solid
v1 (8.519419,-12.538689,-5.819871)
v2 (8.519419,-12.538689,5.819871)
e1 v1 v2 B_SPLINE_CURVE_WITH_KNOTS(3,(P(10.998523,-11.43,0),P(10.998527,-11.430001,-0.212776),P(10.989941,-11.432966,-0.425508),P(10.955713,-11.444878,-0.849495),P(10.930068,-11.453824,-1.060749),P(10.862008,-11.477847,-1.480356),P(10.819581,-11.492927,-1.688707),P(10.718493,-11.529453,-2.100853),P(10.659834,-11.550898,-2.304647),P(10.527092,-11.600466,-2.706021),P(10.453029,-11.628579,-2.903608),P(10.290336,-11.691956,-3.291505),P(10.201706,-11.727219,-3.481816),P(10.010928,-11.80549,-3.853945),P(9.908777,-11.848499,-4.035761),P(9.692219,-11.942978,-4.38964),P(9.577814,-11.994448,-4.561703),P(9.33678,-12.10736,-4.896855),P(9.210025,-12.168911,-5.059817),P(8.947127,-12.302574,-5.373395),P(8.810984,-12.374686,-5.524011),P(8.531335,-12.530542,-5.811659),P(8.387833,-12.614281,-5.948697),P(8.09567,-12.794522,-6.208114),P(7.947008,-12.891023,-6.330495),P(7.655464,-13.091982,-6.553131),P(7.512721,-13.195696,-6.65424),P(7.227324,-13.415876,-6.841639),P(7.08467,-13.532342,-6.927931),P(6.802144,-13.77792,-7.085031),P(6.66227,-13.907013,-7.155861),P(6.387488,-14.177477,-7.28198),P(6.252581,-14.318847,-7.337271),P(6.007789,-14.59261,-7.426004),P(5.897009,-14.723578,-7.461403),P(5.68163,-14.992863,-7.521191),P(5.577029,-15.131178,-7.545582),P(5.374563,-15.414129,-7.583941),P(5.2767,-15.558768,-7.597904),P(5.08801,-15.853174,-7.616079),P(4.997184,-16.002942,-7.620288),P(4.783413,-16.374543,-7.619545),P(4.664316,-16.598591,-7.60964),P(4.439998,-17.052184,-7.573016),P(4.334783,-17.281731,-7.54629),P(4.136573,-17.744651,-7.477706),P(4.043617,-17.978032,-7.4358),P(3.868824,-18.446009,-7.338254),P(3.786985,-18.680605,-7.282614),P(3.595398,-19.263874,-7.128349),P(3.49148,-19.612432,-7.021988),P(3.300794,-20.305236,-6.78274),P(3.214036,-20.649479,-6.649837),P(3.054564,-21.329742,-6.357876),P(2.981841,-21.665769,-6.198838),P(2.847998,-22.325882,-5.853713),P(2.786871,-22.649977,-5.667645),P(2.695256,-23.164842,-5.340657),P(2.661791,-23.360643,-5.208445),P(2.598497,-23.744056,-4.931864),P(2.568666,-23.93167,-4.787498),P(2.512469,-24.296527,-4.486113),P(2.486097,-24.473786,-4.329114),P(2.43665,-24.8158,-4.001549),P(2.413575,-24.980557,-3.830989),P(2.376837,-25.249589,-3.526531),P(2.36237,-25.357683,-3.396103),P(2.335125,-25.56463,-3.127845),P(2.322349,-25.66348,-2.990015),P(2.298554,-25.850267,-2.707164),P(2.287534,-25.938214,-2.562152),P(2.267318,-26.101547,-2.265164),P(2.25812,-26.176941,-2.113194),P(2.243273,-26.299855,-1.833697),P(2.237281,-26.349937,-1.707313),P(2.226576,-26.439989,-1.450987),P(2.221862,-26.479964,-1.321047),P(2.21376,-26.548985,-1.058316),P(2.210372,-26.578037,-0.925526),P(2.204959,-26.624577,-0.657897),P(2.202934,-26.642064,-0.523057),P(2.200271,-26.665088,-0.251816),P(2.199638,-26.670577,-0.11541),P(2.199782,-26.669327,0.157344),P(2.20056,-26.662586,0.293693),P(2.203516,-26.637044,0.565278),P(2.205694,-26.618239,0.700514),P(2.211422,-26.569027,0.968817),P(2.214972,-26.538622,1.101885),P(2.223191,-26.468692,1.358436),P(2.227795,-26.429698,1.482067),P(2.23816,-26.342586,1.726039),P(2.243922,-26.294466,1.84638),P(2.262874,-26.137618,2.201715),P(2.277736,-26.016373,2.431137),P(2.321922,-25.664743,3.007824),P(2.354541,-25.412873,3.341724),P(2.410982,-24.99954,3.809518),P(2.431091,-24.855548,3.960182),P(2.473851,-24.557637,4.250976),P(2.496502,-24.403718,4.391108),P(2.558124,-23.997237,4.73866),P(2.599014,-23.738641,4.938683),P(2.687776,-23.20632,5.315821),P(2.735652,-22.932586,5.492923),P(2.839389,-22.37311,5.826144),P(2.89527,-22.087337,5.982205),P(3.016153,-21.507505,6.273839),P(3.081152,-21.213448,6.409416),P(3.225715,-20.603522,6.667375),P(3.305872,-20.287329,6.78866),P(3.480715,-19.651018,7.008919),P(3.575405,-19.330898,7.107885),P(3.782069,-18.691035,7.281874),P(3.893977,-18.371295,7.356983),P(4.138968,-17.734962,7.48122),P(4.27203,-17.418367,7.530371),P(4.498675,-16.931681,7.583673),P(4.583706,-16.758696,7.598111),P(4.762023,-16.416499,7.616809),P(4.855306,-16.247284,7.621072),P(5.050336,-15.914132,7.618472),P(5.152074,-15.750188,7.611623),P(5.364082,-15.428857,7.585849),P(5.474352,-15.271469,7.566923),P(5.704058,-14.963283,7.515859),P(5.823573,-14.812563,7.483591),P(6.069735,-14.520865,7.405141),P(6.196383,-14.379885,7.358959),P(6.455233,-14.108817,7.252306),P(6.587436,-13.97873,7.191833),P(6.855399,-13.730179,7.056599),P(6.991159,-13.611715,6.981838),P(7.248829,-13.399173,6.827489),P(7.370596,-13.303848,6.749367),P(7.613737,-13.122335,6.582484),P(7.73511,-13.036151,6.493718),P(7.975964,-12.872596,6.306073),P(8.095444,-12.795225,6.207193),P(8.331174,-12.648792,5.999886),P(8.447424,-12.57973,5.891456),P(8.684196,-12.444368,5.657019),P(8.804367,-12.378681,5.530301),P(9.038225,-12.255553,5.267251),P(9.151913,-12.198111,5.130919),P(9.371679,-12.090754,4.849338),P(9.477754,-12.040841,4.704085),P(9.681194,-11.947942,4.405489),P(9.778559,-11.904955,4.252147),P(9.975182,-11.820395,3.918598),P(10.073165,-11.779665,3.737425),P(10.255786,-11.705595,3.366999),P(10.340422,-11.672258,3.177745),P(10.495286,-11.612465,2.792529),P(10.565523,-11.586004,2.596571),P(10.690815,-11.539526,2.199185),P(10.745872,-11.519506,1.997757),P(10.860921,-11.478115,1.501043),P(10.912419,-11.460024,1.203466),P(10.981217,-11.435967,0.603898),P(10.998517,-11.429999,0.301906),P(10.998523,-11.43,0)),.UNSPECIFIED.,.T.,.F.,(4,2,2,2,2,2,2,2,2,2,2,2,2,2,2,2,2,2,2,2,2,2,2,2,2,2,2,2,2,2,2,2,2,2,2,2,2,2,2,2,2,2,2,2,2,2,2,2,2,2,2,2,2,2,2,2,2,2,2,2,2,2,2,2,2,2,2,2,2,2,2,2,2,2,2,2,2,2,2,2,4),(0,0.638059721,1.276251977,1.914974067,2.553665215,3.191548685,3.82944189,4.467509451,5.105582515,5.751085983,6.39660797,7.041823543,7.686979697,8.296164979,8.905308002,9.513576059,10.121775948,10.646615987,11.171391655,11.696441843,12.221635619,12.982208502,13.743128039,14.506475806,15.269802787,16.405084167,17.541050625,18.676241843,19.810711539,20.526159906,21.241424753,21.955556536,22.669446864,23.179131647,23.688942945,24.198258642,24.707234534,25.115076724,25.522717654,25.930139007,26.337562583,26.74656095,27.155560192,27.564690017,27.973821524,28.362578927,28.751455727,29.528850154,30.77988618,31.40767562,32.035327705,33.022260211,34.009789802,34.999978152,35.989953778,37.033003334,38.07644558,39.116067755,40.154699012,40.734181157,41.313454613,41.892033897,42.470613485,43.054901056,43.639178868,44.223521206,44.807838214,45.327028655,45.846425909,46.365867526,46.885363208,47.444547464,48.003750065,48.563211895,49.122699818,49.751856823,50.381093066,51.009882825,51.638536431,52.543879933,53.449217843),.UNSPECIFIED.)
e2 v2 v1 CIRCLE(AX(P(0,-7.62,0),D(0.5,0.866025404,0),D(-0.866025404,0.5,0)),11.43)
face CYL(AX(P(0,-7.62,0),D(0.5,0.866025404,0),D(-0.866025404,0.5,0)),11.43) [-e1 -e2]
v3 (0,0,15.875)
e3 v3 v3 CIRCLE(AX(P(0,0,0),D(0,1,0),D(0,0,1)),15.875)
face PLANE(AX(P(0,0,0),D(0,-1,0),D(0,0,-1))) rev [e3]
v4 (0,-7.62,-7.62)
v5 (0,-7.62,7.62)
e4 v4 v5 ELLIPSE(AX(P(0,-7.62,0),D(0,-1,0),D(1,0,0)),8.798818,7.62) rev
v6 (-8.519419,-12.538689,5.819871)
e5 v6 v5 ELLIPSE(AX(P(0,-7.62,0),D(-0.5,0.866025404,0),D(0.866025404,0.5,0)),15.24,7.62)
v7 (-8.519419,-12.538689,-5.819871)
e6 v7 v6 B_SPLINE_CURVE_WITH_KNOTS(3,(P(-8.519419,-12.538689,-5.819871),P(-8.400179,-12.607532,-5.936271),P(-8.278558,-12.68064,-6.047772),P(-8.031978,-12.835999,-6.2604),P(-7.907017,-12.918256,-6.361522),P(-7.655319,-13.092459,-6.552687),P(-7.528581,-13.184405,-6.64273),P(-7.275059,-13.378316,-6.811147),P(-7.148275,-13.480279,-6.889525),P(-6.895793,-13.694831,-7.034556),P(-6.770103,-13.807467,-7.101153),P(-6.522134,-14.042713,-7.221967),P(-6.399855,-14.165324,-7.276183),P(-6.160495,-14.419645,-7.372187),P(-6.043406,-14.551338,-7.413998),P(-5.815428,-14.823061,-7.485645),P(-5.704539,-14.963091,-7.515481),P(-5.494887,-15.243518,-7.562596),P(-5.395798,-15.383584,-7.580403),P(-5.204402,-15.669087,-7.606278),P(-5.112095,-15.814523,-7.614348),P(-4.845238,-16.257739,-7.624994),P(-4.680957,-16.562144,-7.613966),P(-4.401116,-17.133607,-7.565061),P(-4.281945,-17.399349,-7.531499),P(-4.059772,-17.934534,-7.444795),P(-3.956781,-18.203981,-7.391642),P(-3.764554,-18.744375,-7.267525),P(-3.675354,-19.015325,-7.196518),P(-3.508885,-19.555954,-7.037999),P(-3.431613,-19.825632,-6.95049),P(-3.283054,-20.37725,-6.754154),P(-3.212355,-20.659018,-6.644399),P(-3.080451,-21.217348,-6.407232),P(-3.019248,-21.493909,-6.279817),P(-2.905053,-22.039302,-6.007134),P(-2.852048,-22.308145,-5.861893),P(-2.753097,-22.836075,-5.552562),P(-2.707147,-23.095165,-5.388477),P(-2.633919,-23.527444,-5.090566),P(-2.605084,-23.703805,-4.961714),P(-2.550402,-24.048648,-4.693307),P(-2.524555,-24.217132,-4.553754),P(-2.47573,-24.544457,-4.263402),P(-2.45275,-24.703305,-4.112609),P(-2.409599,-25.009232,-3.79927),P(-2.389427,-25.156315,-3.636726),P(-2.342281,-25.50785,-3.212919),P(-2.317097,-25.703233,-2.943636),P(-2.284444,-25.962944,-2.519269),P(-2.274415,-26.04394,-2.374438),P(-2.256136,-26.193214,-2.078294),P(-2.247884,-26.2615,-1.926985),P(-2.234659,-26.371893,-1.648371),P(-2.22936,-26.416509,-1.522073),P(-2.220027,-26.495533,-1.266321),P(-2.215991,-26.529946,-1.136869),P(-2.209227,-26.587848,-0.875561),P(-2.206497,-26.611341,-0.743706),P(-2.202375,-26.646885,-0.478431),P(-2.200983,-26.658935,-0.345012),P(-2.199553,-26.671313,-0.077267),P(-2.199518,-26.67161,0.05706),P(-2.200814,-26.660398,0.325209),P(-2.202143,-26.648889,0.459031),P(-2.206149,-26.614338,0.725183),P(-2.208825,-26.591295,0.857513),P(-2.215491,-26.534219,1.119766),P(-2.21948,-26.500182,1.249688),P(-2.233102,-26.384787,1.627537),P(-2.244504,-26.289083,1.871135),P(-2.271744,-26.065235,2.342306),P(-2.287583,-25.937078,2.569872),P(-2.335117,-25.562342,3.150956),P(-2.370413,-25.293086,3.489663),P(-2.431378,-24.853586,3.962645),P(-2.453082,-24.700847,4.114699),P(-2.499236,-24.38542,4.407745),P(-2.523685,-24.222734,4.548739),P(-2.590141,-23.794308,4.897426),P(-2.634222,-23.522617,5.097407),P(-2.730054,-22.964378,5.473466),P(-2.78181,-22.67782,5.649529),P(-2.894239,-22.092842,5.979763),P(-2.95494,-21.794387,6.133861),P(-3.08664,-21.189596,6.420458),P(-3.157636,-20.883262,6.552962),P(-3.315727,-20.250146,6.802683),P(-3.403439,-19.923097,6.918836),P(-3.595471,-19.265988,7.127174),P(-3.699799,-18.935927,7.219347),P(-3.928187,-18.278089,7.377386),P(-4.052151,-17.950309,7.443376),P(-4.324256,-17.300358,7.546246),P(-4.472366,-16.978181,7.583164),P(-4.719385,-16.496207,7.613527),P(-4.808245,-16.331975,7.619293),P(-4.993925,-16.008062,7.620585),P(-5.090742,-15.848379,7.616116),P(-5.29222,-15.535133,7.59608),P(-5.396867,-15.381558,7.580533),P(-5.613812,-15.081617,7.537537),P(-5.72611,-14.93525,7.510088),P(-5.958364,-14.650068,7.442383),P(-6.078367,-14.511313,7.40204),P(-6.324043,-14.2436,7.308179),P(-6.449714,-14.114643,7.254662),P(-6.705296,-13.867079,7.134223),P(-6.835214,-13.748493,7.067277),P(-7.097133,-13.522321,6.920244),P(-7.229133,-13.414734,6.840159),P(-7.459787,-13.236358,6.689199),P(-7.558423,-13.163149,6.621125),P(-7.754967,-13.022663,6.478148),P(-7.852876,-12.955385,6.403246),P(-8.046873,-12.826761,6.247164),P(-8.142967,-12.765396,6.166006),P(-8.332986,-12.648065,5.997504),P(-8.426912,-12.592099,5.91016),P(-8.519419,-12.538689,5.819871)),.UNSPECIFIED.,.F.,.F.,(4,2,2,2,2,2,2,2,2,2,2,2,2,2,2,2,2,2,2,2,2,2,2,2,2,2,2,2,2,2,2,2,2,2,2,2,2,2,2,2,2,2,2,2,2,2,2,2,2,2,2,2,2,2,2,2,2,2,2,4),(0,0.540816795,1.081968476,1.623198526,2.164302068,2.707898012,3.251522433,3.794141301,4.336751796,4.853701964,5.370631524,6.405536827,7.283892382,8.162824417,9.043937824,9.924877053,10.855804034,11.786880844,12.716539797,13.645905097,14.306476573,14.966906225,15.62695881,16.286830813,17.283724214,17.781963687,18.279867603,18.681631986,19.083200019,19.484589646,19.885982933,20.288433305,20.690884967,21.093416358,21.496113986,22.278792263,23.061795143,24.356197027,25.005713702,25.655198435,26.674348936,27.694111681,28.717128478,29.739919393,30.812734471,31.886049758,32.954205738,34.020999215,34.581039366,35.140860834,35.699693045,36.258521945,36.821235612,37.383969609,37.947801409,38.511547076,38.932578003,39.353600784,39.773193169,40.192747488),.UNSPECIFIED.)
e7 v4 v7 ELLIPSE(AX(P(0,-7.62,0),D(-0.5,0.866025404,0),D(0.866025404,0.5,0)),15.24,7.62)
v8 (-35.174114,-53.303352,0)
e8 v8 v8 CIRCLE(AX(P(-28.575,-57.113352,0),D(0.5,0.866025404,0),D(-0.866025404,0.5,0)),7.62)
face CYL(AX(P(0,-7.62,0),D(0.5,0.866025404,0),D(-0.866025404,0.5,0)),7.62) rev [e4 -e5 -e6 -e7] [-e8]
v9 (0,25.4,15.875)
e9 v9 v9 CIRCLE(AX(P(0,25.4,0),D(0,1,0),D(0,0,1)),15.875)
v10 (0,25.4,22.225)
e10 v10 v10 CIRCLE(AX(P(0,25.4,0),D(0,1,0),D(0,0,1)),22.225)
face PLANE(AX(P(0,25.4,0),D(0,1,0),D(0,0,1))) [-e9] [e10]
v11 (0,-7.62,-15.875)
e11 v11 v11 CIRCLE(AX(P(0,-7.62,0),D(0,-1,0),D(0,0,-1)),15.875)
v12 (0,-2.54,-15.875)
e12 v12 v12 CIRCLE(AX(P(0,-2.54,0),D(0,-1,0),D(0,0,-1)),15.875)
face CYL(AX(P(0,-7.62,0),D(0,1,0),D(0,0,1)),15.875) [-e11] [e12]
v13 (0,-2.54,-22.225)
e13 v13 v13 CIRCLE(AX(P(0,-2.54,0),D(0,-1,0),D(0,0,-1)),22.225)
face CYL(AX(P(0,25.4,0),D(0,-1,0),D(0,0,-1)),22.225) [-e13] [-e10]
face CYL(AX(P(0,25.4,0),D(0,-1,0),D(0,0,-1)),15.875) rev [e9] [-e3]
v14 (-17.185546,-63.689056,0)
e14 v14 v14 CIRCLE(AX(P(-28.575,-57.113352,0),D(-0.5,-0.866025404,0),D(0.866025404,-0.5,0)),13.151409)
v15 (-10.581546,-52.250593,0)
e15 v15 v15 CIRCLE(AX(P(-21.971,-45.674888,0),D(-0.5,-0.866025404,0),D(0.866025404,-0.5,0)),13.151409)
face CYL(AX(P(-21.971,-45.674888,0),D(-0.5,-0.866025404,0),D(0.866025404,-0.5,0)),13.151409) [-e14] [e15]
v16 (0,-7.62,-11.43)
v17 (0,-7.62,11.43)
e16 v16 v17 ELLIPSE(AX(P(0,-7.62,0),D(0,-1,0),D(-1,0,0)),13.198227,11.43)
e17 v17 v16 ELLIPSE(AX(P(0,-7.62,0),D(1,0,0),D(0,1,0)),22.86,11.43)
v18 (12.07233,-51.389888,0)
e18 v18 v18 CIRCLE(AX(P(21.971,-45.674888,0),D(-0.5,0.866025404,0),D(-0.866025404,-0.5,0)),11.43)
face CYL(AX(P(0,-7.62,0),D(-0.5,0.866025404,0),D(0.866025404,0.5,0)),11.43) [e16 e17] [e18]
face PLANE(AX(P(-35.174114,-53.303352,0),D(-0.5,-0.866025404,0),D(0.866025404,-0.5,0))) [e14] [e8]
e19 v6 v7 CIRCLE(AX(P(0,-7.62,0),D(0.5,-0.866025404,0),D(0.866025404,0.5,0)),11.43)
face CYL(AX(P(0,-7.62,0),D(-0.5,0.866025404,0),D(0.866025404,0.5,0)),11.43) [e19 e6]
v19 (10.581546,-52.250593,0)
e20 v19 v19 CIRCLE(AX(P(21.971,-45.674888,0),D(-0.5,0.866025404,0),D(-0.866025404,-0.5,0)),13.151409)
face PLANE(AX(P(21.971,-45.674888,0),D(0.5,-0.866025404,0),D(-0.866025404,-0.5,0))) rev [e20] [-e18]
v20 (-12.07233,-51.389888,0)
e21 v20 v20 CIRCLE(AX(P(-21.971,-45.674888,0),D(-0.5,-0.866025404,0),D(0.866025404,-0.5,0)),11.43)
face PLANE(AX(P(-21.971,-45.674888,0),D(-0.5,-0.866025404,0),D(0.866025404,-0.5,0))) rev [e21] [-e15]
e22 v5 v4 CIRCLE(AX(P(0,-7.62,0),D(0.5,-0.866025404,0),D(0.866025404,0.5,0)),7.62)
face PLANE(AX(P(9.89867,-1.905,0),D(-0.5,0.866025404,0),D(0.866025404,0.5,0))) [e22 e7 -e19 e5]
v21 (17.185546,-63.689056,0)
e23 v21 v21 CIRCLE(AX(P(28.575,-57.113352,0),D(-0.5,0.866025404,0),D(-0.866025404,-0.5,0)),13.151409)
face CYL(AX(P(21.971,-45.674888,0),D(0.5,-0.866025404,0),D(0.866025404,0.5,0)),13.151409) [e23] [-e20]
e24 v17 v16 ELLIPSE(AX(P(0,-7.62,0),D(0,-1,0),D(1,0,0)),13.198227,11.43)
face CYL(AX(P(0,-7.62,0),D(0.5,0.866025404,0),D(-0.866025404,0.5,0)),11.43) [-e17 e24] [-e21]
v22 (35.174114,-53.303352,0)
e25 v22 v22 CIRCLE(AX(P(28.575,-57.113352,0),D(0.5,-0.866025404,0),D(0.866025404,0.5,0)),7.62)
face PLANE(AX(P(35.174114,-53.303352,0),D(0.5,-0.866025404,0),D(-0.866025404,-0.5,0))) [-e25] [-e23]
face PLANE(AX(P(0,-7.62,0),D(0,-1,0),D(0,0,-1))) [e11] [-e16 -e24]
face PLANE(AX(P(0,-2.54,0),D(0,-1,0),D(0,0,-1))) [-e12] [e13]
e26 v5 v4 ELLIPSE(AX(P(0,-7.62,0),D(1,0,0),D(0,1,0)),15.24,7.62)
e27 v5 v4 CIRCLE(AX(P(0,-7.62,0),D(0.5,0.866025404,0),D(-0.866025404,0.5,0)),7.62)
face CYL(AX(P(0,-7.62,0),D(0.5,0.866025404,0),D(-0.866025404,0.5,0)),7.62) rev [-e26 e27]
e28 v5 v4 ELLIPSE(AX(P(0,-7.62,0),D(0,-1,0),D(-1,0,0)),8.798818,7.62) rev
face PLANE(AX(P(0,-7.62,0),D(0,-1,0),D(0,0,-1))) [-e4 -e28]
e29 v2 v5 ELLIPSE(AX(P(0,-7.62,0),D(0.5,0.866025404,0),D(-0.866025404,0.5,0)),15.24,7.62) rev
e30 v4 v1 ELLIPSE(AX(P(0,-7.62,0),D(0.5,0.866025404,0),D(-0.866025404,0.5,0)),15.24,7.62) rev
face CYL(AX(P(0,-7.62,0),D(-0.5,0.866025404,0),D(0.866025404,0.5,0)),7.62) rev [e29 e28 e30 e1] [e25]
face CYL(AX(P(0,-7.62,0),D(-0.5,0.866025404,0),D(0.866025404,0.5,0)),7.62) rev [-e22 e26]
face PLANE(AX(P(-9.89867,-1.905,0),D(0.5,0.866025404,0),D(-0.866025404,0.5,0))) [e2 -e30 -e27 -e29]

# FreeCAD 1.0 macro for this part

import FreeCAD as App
import Part
import Sketcher
from FreeCAD import Vector
Q = App.Units.Quantity

doc = App.newDocument("Part")
body = doc.addObject("PartDesign::Body", "Body")

# Sketch on XZ plane
sketch1 = body.newObject("Sketcher::SketchObject", "Sketch")
sketch1.AttachmentSupport = (doc.getObject("XZ_Plane"), [""])
sketch1.MapMode = "FlatFace"
sketch1.addGeometry([
    Part.Circle(Vector(0, 0, 0), Vector(0, 0, 1), 22),
    Part.Circle(Vector(0, 0, 0), Vector(0, 0, 1), 16),
], False)
sketch1.addConstraint([
    Sketcher.Constraint("Coincident", 0, 3, -1, 1),
    Sketcher.Constraint("Coincident", 1, 3, -1, 1),
    Sketcher.Constraint("Diameter", 0, Q("1.75 in")),
    Sketcher.Constraint("Diameter", 1, Q("1.25 in")),
])
pad1 = body.newObject("PartDesign::Pad", "Pad")
pad1.Profile = sketch1
pad1.Length = Q("1 in")
pad1.Reversed = True

# Sketch on XZ plane
sketch2 = body.newObject("Sketcher::SketchObject", "Sketch001")
sketch2.AttachmentSupport = (doc.getObject("XZ_Plane"), [""])
sketch2.MapMode = "FlatFace"
sketch2.AttachmentOffset = App.Placement(Vector(0, 0, 0.1 * 25.4), App.Rotation())
sketch2.addGeometry(Part.Circle(Vector(0, 0, 0), Vector(0, 0, 1), 22), False)
sketch2.addConstraint([
    Sketcher.Constraint("Coincident", 0, 3, -1, 1),
    Sketcher.Constraint("Diameter", 0, Q("1.75 in")),
])
pad2 = body.newObject("PartDesign::Pad", "Pad001")
pad2.Profile = sketch2
pad2.Length = Q("0.1 in")
pad2.Reversed = True

# Sketch on XZ plane
sketch3 = body.newObject("Sketcher::SketchObject", "Sketch002")
sketch3.AttachmentSupport = (doc.getObject("XZ_Plane"), [""])
sketch3.MapMode = "FlatFace"
sketch3.AttachmentOffset = App.Placement(Vector(0, 0, 0.3 * 25.4), App.Rotation())
sketch3.addGeometry(Part.Circle(Vector(0, 0, 0), Vector(0, 0, 1), 16), False)
sketch3.addConstraint([
    Sketcher.Constraint("Coincident", 0, 3, -1, 1),
    Sketcher.Constraint("Diameter", 0, Q("1.25 in")),
])
pad3 = body.newObject("PartDesign::Pad", "Pad002")
pad3.Profile = sketch3
pad3.Length = Q("0.2 in")
pad3.Reversed = True

# Sketch on XY plane
sketch4 = body.newObject("Sketcher::SketchObject", "Sketch003")
sketch4.AttachmentSupport = (doc.getObject("XY_Plane"), [""])
sketch4.MapMode = "FlatFace"
sketch4.addGeometry([
    Part.LineSegment(Vector(-9.9, -1.9, 0), Vector(-38.5, -51.4, 0)),
    Part.LineSegment(Vector(-38.5, -51.4, 0), Vector(-35.2, -53.3, 0)),
    Part.LineSegment(Vector(-35.2, -53.3, 0), Vector(-6.6, -3.8, 0)),
    Part.LineSegment(Vector(-6.6, -3.8, 0), Vector(-9.9, -1.9, 0)),
], False)
sketch4.addGeometry(Part.LineSegment(Vector(0, -7.6, 0), Vector(-28.6, -57.1, 0)), True)  # axis
sketch4.addConstraint([
    Sketcher.Constraint("Coincident", 0, 2, 1, 1),
    Sketcher.Constraint("Coincident", 1, 2, 2, 1),
    Sketcher.Constraint("Coincident", 2, 2, 3, 1),
    Sketcher.Constraint("Coincident", 3, 2, 0, 1),
    Sketcher.Constraint("PointOnObject", 4, 1, -2),
    Sketcher.Constraint("Perpendicular", 0, 1),
    Sketcher.Constraint("Perpendicular", 1, 2),
    Sketcher.Constraint("Perpendicular", 2, 3),
    Sketcher.Constraint("Perpendicular", 3, 4),
    Sketcher.Constraint("Equal", 2, 4),
    Sketcher.Constraint("Angle", 0, Q("-120 deg")),
    Sketcher.Constraint("DistanceY", 4, 1, -1, 1, Q("0.3 in")),
    Sketcher.Constraint("Distance", 0, Q("2.25 in")),
    Sketcher.Constraint("Distance", 1, Q("0.15 in")),
    Sketcher.Constraint("DistanceY", 2, 2, -1, 1, Q("0.15 in")),
    Sketcher.Constraint("DistanceX", 0, 2, -1, 1, 38.47367),
])
revolution = body.newObject("PartDesign::Revolution", "Revolution")
revolution.Profile = sketch4
revolution.ReferenceAxis = (sketch4, ["Axis0"])
revolution.Angle = 360

# Sketch on an angled plane
sketch5 = body.newObject("Sketcher::SketchObject", "Sketch004")
sketch5.Placement = App.Placement(Vector(-25.270557, -43.769888, 0), App.Rotation(Vector(0.866025404, -0.5, 0), Vector(0, 0, 1), Vector(-0.5, -0.866025404, 0), "ZXY"))
sketch5.addGeometry([
    Part.Circle(Vector(4, 0, 0), Vector(0, 0, 1), 13),
    Part.Circle(Vector(4, 0, 0), Vector(0, 0, 1), 11),
], False)
sketch5.addConstraint([
    Sketcher.Constraint("Coincident", 1, 3, 0, 3),
    Sketcher.Constraint("PointOnObject", 0, 3, -1),
    Sketcher.Constraint("Diameter", 1, Q("0.9 in")),
    Sketcher.Constraint("DistanceX", -1, 1, 0, 3, Q("0.15 in")),
    Sketcher.Constraint("Diameter", 0, 26.302817),
])
pad4 = body.newObject("PartDesign::Pad", "Pad003")
pad4.Profile = sketch5
pad4.Length = Q("0.52 in")
doc.recompute()

mirrored = body.newObject("PartDesign::Mirrored", "Mirrored")
mirrored.Originals = [revolution, pad4]
mirrored.MirrorPlane = (doc.getObject("YZ_Plane"), [""])
body.Tip = mirrored

doc.recompute()
